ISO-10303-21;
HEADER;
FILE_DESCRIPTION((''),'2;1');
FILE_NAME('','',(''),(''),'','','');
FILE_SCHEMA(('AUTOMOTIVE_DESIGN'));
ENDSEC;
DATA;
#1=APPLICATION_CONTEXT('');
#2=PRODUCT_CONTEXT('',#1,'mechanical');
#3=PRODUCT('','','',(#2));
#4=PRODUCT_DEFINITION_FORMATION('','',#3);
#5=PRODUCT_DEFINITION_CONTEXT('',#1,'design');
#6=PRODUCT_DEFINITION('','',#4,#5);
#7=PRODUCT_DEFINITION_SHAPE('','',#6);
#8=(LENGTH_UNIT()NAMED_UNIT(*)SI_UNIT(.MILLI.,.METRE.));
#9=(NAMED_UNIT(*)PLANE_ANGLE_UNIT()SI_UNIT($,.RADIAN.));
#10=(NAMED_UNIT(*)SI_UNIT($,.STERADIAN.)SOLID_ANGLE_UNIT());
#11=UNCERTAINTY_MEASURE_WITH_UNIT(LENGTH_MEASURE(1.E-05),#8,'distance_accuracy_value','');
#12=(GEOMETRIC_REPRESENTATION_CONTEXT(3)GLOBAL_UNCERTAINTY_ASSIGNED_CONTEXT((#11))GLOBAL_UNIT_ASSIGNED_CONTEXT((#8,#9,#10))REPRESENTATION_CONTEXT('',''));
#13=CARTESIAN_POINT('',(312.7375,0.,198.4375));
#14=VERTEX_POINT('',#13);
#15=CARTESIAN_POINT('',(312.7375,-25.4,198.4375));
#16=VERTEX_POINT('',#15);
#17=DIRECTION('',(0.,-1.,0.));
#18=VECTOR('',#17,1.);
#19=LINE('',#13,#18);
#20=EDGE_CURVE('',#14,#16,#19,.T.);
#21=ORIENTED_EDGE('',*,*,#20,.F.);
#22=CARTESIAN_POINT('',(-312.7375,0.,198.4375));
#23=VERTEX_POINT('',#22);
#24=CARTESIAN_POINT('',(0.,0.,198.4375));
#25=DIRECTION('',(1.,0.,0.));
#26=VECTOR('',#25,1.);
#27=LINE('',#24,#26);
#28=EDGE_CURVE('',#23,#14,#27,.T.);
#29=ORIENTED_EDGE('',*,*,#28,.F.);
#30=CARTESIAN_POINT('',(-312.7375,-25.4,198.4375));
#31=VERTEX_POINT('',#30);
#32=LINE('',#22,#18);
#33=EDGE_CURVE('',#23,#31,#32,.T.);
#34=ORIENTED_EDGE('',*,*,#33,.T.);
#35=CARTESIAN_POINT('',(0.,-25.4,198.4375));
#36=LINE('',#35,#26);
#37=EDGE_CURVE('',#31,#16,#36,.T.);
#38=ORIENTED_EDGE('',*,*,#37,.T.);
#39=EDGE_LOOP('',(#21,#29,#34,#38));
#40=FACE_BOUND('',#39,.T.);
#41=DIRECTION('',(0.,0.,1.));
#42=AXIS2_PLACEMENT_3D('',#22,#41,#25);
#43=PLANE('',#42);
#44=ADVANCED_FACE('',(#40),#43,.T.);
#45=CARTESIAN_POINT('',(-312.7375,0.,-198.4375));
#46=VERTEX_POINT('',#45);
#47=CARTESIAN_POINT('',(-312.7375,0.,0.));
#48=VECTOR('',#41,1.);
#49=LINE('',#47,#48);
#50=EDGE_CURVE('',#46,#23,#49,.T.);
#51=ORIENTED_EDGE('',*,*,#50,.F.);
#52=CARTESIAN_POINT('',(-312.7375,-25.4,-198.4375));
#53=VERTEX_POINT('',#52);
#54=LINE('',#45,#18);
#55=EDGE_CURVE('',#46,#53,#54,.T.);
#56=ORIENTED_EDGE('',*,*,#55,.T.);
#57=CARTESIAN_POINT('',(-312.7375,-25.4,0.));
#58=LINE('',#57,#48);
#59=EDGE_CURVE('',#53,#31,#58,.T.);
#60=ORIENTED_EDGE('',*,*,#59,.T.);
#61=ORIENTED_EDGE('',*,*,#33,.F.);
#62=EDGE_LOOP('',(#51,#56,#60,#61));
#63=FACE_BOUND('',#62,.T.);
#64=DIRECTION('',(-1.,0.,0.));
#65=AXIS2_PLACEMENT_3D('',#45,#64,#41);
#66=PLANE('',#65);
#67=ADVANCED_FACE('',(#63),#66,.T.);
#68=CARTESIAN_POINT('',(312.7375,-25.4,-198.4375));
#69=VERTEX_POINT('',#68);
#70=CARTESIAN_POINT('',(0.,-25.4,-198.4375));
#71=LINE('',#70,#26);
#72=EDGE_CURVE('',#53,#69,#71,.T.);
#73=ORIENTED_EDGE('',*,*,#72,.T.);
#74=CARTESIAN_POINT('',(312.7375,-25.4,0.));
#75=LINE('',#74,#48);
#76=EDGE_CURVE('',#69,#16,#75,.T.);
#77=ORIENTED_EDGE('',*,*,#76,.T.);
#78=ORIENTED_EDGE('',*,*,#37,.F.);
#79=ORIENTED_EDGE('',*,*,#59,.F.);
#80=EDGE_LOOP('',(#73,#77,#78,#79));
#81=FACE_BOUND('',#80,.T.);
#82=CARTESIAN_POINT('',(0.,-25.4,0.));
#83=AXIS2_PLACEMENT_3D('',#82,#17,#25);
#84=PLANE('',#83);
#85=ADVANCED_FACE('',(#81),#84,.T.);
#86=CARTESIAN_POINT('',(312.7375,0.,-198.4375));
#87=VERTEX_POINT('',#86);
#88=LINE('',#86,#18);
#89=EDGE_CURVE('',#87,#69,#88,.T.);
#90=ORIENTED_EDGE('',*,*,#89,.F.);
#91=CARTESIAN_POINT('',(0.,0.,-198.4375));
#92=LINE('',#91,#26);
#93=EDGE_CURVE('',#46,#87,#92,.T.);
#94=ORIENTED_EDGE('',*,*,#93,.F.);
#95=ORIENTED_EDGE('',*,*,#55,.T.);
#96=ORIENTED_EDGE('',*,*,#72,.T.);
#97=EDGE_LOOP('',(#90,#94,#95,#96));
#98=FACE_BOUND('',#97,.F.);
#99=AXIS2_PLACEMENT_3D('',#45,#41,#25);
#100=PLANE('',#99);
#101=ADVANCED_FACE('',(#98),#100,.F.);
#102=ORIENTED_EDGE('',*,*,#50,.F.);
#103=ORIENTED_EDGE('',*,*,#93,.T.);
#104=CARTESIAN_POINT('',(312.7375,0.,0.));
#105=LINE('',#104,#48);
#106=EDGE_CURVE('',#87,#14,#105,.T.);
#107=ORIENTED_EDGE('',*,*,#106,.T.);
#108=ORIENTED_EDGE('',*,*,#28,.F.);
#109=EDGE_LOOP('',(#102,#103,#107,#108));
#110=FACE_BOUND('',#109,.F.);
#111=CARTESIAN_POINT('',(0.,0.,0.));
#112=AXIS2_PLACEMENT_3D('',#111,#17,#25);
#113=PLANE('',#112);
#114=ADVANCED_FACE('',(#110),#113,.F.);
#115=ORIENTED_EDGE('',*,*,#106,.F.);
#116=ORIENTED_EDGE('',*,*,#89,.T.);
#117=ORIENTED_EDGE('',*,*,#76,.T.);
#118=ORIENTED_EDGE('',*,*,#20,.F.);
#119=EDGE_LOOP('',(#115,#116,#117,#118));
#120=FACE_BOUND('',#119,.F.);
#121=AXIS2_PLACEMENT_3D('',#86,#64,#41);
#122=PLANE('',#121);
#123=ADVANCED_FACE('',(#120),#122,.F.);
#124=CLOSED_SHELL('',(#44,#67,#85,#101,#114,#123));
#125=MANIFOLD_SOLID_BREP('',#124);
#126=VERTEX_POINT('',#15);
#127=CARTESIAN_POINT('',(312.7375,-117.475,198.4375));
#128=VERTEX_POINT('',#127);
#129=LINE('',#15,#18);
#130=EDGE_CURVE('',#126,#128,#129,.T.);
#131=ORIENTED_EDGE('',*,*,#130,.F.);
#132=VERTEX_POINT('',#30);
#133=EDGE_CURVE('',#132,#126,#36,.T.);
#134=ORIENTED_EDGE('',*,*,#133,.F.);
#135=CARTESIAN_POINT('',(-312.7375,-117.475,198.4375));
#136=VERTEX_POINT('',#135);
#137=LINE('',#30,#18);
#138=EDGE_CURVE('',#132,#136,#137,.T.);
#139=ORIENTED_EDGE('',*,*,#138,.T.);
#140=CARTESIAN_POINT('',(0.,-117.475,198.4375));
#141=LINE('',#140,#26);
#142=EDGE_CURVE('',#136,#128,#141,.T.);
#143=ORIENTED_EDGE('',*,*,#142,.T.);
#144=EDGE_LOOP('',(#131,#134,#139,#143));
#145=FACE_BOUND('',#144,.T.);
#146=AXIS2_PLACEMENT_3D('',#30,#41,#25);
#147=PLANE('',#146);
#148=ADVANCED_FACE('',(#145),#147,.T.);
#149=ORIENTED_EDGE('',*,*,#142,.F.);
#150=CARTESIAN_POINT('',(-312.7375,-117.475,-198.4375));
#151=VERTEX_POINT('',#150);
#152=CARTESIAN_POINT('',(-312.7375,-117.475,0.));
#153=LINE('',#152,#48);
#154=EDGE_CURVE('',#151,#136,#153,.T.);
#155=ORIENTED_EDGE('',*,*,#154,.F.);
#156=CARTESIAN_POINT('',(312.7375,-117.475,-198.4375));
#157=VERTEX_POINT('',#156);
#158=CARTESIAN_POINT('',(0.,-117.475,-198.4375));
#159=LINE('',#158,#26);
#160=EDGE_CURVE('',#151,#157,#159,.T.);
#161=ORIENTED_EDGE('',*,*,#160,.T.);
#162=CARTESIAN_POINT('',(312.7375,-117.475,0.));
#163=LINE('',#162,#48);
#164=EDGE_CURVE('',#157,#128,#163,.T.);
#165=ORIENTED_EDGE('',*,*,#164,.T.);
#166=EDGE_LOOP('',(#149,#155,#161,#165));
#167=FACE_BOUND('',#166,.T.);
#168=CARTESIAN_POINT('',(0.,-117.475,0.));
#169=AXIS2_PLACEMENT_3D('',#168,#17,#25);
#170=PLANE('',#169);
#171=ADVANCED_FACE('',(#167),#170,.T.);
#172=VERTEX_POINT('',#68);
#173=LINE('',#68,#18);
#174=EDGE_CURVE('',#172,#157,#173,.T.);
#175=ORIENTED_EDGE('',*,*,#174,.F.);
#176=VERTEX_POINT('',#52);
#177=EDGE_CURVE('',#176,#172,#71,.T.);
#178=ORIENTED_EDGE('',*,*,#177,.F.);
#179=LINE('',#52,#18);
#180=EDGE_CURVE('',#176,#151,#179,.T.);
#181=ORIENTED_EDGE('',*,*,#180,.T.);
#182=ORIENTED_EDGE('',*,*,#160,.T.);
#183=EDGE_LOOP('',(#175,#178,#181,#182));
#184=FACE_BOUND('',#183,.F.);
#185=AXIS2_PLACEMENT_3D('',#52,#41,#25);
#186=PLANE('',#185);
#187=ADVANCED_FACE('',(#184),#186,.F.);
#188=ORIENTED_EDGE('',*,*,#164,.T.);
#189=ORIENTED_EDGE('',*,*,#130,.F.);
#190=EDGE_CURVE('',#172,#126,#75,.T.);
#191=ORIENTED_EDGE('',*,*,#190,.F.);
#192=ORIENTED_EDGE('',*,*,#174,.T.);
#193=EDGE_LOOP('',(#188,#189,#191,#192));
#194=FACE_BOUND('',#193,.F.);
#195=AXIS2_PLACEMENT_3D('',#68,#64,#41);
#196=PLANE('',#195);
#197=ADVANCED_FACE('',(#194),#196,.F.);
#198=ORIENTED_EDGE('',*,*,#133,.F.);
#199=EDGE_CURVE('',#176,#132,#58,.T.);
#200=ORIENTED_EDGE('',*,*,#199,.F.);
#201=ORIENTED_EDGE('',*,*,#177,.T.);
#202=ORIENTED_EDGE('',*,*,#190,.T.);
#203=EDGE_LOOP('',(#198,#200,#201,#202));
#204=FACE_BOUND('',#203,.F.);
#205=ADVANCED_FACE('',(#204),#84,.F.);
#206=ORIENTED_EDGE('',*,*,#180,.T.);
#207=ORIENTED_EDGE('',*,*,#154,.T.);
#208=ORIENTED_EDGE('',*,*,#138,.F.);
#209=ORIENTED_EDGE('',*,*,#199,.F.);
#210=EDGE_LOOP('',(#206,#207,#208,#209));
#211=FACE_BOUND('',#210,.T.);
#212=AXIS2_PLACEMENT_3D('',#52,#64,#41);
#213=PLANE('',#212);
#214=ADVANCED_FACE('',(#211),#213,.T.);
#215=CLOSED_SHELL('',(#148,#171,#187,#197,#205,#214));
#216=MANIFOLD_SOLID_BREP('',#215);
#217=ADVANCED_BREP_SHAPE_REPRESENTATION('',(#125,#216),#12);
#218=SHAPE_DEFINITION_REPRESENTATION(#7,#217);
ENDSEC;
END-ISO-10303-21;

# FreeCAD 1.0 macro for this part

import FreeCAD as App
import Part
import Sketcher
from FreeCAD import Vector
Q = App.Units.Quantity

doc = App.newDocument("Part")
body = doc.addObject("PartDesign::Body", "Body")

# Sketch on XZ plane
sketch1 = body.newObject("Sketcher::SketchObject", "Sketch")
sketch1.AttachmentSupport = (doc.getObject("XZ_Plane"), [""])
sketch1.MapMode = "FlatFace"
sketch1.addGeometry([
    Part.LineSegment(Vector(-313, 198, 0), Vector(-313, -198, 0)),
    Part.LineSegment(Vector(-313, -198, 0), Vector(313, -198, 0)),
    Part.LineSegment(Vector(313, -198, 0), Vector(313, 198, 0)),
    Part.LineSegment(Vector(313, 198, 0), Vector(-313, 198, 0)),
], False)
sketch1.addConstraint([
    Sketcher.Constraint("Coincident", 0, 2, 1, 1),
    Sketcher.Constraint("Coincident", 1, 2, 2, 1),
    Sketcher.Constraint("Coincident", 2, 2, 3, 1),
    Sketcher.Constraint("Coincident", 3, 2, 0, 1),
    Sketcher.Constraint("Vertical", 0),
    Sketcher.Constraint("Horizontal", 1),
    Sketcher.Constraint("Vertical", 2),
    Sketcher.Constraint("Horizontal", 3),
    Sketcher.Constraint("Symmetric", 0, 2, 2, 2, -1, 1),
    Sketcher.Constraint("DistanceX", 1, 1, 1, 2, Q("24.625 in")),
    Sketcher.Constraint("DistanceY", 0, 2, 0, 1, Q("15.625 in")),
])
pad1 = body.newObject("PartDesign::Pad", "Pad")
pad1.Profile = sketch1
pad1.Length = Q("1 in")
body2 = doc.addObject("PartDesign::Body", "Body001")

# Sketch on XZ plane
sketch2 = body2.newObject("Sketcher::SketchObject", "Sketch001")
sketch2.AttachmentSupport = (doc.getObject("XZ_Plane001"), [""])
sketch2.MapMode = "FlatFace"
sketch2.AttachmentOffset = App.Placement(Vector(0, 0, 1 * 25.4), App.Rotation())
sketch2.addGeometry([
    Part.LineSegment(Vector(-313, 198, 0), Vector(-313, -198, 0)),
    Part.LineSegment(Vector(-313, -198, 0), Vector(313, -198, 0)),
    Part.LineSegment(Vector(313, -198, 0), Vector(313, 198, 0)),
    Part.LineSegment(Vector(313, 198, 0), Vector(-313, 198, 0)),
], False)
sketch2.addConstraint([
    Sketcher.Constraint("Coincident", 0, 2, 1, 1),
    Sketcher.Constraint("Coincident", 1, 2, 2, 1),
    Sketcher.Constraint("Coincident", 2, 2, 3, 1),
    Sketcher.Constraint("Coincident", 3, 2, 0, 1),
    Sketcher.Constraint("Vertical", 0),
    Sketcher.Constraint("Horizontal", 1),
    Sketcher.Constraint("Vertical", 2),
    Sketcher.Constraint("Horizontal", 3),
    Sketcher.Constraint("Symmetric", 0, 2, 2, 2, -1, 1),
    Sketcher.Constraint("DistanceX", 1, 1, 1, 2, Q("24.625 in")),
    Sketcher.Constraint("DistanceY", 0, 2, 0, 1, Q("15.625 in")),
])
pad2 = body2.newObject("PartDesign::Pad", "Pad001")
pad2.Profile = sketch2
pad2.Length = Q("3.625 in")

doc.recompute()
